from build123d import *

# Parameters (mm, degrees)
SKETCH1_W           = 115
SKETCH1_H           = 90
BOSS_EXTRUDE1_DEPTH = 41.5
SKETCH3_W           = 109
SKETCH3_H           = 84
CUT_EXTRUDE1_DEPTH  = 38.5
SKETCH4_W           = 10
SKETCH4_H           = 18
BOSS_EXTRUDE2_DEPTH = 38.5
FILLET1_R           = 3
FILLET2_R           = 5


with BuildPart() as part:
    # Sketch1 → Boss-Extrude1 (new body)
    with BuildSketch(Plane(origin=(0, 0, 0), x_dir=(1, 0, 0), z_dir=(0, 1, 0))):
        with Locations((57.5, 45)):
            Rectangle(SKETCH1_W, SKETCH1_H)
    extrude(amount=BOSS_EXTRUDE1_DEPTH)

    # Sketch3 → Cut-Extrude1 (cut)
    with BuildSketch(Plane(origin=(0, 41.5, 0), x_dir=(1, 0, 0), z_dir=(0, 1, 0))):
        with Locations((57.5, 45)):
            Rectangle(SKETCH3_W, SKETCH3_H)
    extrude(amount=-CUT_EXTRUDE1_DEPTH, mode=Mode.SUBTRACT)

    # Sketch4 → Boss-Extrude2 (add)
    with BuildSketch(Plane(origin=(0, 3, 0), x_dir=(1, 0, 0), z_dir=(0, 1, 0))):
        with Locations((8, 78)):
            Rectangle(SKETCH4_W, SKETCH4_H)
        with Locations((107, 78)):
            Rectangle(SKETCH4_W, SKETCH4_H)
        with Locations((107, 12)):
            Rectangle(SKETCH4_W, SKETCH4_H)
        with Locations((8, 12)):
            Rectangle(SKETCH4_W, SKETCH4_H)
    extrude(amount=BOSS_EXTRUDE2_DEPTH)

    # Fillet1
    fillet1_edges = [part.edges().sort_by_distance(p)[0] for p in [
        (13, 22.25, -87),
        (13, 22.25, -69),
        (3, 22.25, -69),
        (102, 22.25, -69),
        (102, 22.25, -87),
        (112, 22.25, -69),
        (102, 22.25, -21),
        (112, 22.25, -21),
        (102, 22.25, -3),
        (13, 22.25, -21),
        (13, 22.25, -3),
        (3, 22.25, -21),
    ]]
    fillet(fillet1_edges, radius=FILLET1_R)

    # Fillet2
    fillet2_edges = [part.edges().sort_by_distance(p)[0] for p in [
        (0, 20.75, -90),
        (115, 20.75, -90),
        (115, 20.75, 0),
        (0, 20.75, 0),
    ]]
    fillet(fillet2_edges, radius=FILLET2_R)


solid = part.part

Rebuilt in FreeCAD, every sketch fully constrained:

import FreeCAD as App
import Part
import Sketcher


def edges_at(feature, points):
    """Names of the edges that pass closest to the given points."""
    edges = feature.Shape.Edges
    near = lambda p: min(range(len(edges)), key=lambda i: edges[i].distToShape(Part.Vertex(*p))[0])
    return sorted({f"Edge{near(p) + 1}" for p in points})

doc = App.newDocument("Part")
body = doc.addObject("PartDesign::Body", "Body")

sketch1 = body.newObject("Sketcher::SketchObject", "Sketch")
sketch1.AttachmentSupport = (doc.getObject("XZ_Plane"), [""])
sketch1.MapMode = "FlatFace"
sketch1.addGeometry([
    Part.LineSegment(App.Vector(0, -90, 0), App.Vector(0, 0, 0)),
    Part.LineSegment(App.Vector(0, 0, 0), App.Vector(115, 0, 0)),
    Part.LineSegment(App.Vector(115, 0, 0), App.Vector(115, -90, 0)),
    Part.LineSegment(App.Vector(115, -90, 0), App.Vector(0, -90, 0)),
], False)
sketch1.addConstraint([
    Sketcher.Constraint("Coincident", 0, 2, 1, 1),
    Sketcher.Constraint("Coincident", 1, 2, 2, 1),
    Sketcher.Constraint("Coincident", 2, 2, 3, 1),
    Sketcher.Constraint("Coincident", 3, 2, 0, 1),
    Sketcher.Constraint("Vertical", 0),
    Sketcher.Constraint("Horizontal", 1),
    Sketcher.Constraint("Vertical", 2),
    Sketcher.Constraint("Horizontal", 3),
    Sketcher.Constraint("Coincident", 0, 2, -1, 1),
    Sketcher.Constraint("DistanceX", 1, 1, 1, 2, 115.0),
    Sketcher.Constraint("DistanceY", 0, 1, 0, 2, 90.0),
])
pad1 = body.newObject("PartDesign::Pad", "Pad")
pad1.Profile = sketch1
pad1.Length = 41.5
pad1.Reversed = True

sketch2 = body.newObject("Sketcher::SketchObject", "Sketch001")
sketch2.AttachmentSupport = (doc.getObject("XZ_Plane"), [""])
sketch2.MapMode = "FlatFace"
sketch2.AttachmentOffset = App.Placement(App.Vector(0, 0, -41.5), App.Rotation())
sketch2.addGeometry([
    Part.LineSegment(App.Vector(3, -87, 0), App.Vector(3, -3, 0)),
    Part.LineSegment(App.Vector(3, -3, 0), App.Vector(112, -3, 0)),
    Part.LineSegment(App.Vector(112, -3, 0), App.Vector(112, -87, 0)),
    Part.LineSegment(App.Vector(112, -87, 0), App.Vector(3, -87, 0)),
], False)
sketch2.addConstraint([
    Sketcher.Constraint("Coincident", 0, 2, 1, 1),
    Sketcher.Constraint("Coincident", 1, 2, 2, 1),
    Sketcher.Constraint("Coincident", 2, 2, 3, 1),
    Sketcher.Constraint("Coincident", 3, 2, 0, 1),
    Sketcher.Constraint("Vertical", 0),
    Sketcher.Constraint("Horizontal", 1),
    Sketcher.Constraint("Vertical", 2),
    Sketcher.Constraint("Horizontal", 3),
    Sketcher.Constraint("DistanceX", 1, 1, 1, 2, 109.0),
    Sketcher.Constraint("DistanceY", 0, 1, 0, 2, 84.0),
    Sketcher.Constraint("DistanceX", -1, 1, 0, 2, 3.0),
    Sketcher.Constraint("DistanceY", 0, 2, -1, 1, 3.0),
])
pocket1 = body.newObject("PartDesign::Pocket", "Pocket")
pocket1.Profile = sketch2
pocket1.Length = 38.5
pocket1.Reversed = True

sketch3 = body.newObject("Sketcher::SketchObject", "Sketch002")
sketch3.AttachmentSupport = (doc.getObject("XZ_Plane"), [""])
sketch3.MapMode = "FlatFace"
sketch3.AttachmentOffset = App.Placement(App.Vector(0, 0, -3), App.Rotation())
sketch3.addGeometry([
    Part.LineSegment(App.Vector(3, -87, 0), App.Vector(3, -69, 0)),
    Part.LineSegment(App.Vector(3, -69, 0), App.Vector(13, -69, 0)),
    Part.LineSegment(App.Vector(13, -69, 0), App.Vector(13, -87, 0)),
    Part.LineSegment(App.Vector(13, -87, 0), App.Vector(3, -87, 0)),
    Part.LineSegment(App.Vector(102, -87, 0), App.Vector(102, -69, 0)),
    Part.LineSegment(App.Vector(102, -69, 0), App.Vector(112, -69, 0)),
    Part.LineSegment(App.Vector(112, -69, 0), App.Vector(112, -87, 0)),
    Part.LineSegment(App.Vector(112, -87, 0), App.Vector(102, -87, 0)),
    Part.LineSegment(App.Vector(102, -21, 0), App.Vector(102, -3, 0)),
    Part.LineSegment(App.Vector(102, -3, 0), App.Vector(112, -3, 0)),
    Part.LineSegment(App.Vector(112, -3, 0), App.Vector(112, -21, 0)),
    Part.LineSegment(App.Vector(112, -21, 0), App.Vector(102, -21, 0)),
    Part.LineSegment(App.Vector(3, -21, 0), App.Vector(3, -3, 0)),
    Part.LineSegment(App.Vector(3, -3, 0), App.Vector(13, -3, 0)),
    Part.LineSegment(App.Vector(13, -3, 0), App.Vector(13, -21, 0)),
    Part.LineSegment(App.Vector(13, -21, 0), App.Vector(3, -21, 0)),
], False)
sketch3.addConstraint([
    Sketcher.Constraint("Coincident", 0, 2, 1, 1),
    Sketcher.Constraint("Coincident", 1, 2, 2, 1),
    Sketcher.Constraint("Coincident", 2, 2, 3, 1),
    Sketcher.Constraint("Coincident", 3, 2, 0, 1),
    Sketcher.Constraint("Coincident", 4, 2, 5, 1),
    Sketcher.Constraint("Coincident", 5, 2, 6, 1),
    Sketcher.Constraint("Coincident", 6, 2, 7, 1),
    Sketcher.Constraint("Coincident", 7, 2, 4, 1),
    Sketcher.Constraint("Coincident", 8, 2, 9, 1),
    Sketcher.Constraint("Coincident", 9, 2, 10, 1),
    Sketcher.Constraint("Coincident", 10, 2, 11, 1),
    Sketcher.Constraint("Coincident", 11, 2, 8, 1),
    Sketcher.Constraint("Coincident", 12, 2, 13, 1),
    Sketcher.Constraint("Coincident", 13, 2, 14, 1),
    Sketcher.Constraint("Coincident", 14, 2, 15, 1),
    Sketcher.Constraint("Coincident", 15, 2, 12, 1),
    Sketcher.Constraint("Vertical", 0),
    Sketcher.Constraint("Horizontal", 1),
    Sketcher.Constraint("Vertical", 2),
    Sketcher.Constraint("Horizontal", 3),
    Sketcher.Constraint("Vertical", 4),
    Sketcher.Constraint("Horizontal", 5),
    Sketcher.Constraint("Vertical", 6),
    Sketcher.Constraint("Horizontal", 7),
    Sketcher.Constraint("Vertical", 8),
    Sketcher.Constraint("Horizontal", 9),
    Sketcher.Constraint("Vertical", 10),
    Sketcher.Constraint("Horizontal", 11),
    Sketcher.Constraint("Vertical", 12),
    Sketcher.Constraint("Horizontal", 13),
    Sketcher.Constraint("Vertical", 14),
    Sketcher.Constraint("Horizontal", 15),
    Sketcher.Constraint("Horizontal", 1, 2, 4, 2),
    Sketcher.Constraint("Horizontal", 3, 2, 6, 2),
    Sketcher.Constraint("Horizontal", 9, 2, 12, 2),
    Sketcher.Constraint("Horizontal", 11, 2, 14, 2),
    Sketcher.Constraint("Vertical", 7, 2, 8, 2),
    Sketcher.Constraint("Vertical", 6, 2, 9, 2),
    Sketcher.Constraint("Vertical", 3, 2, 12, 2),
    Sketcher.Constraint("Vertical", 2, 2, 13, 2),
    Sketcher.Constraint("Equal", 3, 5),
    Sketcher.Constraint("Equal", 6, 8),
    Sketcher.Constraint("DistanceX", 1, 1, 1, 2, 10.0),
    Sketcher.Constraint("DistanceY", 0, 1, 0, 2, 18.0),
    Sketcher.Constraint("DistanceX", -1, 1, 0, 2, 3.0),
    Sketcher.Constraint("DistanceY", 0, 2, -1, 1, 69.0),
    Sketcher.Constraint("DistanceX", -1, 1, 4, 2, 102.0),
    Sketcher.Constraint("DistanceY", 8, 2, -1, 1, 3.0),
])
pad2 = body.newObject("PartDesign::Pad", "Pad001")
pad2.Profile = sketch3
pad2.Length = 38.5
pad2.Reversed = True
doc.recompute()

fillet = body.newObject("PartDesign::Fillet", "Fillet")
fillet.Base = (pad2, edges_at(pad2, [
    (13, 22.25, -87),
    (13, 22.25, -69),
    (3, 22.25, -69),
    (102, 22.25, -69),
    (102, 22.25, -87),
    (112, 22.25, -69),
    (102, 22.25, -21),
    (112, 22.25, -21),
    (102, 22.25, -3),
    (13, 22.25, -21),
    (13, 22.25, -3),
    (3, 22.25, -21),
]))
fillet.Radius = 3
doc.recompute()

fillet2 = body.newObject("PartDesign::Fillet", "Fillet001")
fillet2.Base = (fillet, edges_at(fillet, [
    (0, 20.75, -90),
    (115, 20.75, -90),
    (115, 20.75, 0),
    (0, 20.75, 0),
]))
fillet2.Radius = 5

doc.recompute()
